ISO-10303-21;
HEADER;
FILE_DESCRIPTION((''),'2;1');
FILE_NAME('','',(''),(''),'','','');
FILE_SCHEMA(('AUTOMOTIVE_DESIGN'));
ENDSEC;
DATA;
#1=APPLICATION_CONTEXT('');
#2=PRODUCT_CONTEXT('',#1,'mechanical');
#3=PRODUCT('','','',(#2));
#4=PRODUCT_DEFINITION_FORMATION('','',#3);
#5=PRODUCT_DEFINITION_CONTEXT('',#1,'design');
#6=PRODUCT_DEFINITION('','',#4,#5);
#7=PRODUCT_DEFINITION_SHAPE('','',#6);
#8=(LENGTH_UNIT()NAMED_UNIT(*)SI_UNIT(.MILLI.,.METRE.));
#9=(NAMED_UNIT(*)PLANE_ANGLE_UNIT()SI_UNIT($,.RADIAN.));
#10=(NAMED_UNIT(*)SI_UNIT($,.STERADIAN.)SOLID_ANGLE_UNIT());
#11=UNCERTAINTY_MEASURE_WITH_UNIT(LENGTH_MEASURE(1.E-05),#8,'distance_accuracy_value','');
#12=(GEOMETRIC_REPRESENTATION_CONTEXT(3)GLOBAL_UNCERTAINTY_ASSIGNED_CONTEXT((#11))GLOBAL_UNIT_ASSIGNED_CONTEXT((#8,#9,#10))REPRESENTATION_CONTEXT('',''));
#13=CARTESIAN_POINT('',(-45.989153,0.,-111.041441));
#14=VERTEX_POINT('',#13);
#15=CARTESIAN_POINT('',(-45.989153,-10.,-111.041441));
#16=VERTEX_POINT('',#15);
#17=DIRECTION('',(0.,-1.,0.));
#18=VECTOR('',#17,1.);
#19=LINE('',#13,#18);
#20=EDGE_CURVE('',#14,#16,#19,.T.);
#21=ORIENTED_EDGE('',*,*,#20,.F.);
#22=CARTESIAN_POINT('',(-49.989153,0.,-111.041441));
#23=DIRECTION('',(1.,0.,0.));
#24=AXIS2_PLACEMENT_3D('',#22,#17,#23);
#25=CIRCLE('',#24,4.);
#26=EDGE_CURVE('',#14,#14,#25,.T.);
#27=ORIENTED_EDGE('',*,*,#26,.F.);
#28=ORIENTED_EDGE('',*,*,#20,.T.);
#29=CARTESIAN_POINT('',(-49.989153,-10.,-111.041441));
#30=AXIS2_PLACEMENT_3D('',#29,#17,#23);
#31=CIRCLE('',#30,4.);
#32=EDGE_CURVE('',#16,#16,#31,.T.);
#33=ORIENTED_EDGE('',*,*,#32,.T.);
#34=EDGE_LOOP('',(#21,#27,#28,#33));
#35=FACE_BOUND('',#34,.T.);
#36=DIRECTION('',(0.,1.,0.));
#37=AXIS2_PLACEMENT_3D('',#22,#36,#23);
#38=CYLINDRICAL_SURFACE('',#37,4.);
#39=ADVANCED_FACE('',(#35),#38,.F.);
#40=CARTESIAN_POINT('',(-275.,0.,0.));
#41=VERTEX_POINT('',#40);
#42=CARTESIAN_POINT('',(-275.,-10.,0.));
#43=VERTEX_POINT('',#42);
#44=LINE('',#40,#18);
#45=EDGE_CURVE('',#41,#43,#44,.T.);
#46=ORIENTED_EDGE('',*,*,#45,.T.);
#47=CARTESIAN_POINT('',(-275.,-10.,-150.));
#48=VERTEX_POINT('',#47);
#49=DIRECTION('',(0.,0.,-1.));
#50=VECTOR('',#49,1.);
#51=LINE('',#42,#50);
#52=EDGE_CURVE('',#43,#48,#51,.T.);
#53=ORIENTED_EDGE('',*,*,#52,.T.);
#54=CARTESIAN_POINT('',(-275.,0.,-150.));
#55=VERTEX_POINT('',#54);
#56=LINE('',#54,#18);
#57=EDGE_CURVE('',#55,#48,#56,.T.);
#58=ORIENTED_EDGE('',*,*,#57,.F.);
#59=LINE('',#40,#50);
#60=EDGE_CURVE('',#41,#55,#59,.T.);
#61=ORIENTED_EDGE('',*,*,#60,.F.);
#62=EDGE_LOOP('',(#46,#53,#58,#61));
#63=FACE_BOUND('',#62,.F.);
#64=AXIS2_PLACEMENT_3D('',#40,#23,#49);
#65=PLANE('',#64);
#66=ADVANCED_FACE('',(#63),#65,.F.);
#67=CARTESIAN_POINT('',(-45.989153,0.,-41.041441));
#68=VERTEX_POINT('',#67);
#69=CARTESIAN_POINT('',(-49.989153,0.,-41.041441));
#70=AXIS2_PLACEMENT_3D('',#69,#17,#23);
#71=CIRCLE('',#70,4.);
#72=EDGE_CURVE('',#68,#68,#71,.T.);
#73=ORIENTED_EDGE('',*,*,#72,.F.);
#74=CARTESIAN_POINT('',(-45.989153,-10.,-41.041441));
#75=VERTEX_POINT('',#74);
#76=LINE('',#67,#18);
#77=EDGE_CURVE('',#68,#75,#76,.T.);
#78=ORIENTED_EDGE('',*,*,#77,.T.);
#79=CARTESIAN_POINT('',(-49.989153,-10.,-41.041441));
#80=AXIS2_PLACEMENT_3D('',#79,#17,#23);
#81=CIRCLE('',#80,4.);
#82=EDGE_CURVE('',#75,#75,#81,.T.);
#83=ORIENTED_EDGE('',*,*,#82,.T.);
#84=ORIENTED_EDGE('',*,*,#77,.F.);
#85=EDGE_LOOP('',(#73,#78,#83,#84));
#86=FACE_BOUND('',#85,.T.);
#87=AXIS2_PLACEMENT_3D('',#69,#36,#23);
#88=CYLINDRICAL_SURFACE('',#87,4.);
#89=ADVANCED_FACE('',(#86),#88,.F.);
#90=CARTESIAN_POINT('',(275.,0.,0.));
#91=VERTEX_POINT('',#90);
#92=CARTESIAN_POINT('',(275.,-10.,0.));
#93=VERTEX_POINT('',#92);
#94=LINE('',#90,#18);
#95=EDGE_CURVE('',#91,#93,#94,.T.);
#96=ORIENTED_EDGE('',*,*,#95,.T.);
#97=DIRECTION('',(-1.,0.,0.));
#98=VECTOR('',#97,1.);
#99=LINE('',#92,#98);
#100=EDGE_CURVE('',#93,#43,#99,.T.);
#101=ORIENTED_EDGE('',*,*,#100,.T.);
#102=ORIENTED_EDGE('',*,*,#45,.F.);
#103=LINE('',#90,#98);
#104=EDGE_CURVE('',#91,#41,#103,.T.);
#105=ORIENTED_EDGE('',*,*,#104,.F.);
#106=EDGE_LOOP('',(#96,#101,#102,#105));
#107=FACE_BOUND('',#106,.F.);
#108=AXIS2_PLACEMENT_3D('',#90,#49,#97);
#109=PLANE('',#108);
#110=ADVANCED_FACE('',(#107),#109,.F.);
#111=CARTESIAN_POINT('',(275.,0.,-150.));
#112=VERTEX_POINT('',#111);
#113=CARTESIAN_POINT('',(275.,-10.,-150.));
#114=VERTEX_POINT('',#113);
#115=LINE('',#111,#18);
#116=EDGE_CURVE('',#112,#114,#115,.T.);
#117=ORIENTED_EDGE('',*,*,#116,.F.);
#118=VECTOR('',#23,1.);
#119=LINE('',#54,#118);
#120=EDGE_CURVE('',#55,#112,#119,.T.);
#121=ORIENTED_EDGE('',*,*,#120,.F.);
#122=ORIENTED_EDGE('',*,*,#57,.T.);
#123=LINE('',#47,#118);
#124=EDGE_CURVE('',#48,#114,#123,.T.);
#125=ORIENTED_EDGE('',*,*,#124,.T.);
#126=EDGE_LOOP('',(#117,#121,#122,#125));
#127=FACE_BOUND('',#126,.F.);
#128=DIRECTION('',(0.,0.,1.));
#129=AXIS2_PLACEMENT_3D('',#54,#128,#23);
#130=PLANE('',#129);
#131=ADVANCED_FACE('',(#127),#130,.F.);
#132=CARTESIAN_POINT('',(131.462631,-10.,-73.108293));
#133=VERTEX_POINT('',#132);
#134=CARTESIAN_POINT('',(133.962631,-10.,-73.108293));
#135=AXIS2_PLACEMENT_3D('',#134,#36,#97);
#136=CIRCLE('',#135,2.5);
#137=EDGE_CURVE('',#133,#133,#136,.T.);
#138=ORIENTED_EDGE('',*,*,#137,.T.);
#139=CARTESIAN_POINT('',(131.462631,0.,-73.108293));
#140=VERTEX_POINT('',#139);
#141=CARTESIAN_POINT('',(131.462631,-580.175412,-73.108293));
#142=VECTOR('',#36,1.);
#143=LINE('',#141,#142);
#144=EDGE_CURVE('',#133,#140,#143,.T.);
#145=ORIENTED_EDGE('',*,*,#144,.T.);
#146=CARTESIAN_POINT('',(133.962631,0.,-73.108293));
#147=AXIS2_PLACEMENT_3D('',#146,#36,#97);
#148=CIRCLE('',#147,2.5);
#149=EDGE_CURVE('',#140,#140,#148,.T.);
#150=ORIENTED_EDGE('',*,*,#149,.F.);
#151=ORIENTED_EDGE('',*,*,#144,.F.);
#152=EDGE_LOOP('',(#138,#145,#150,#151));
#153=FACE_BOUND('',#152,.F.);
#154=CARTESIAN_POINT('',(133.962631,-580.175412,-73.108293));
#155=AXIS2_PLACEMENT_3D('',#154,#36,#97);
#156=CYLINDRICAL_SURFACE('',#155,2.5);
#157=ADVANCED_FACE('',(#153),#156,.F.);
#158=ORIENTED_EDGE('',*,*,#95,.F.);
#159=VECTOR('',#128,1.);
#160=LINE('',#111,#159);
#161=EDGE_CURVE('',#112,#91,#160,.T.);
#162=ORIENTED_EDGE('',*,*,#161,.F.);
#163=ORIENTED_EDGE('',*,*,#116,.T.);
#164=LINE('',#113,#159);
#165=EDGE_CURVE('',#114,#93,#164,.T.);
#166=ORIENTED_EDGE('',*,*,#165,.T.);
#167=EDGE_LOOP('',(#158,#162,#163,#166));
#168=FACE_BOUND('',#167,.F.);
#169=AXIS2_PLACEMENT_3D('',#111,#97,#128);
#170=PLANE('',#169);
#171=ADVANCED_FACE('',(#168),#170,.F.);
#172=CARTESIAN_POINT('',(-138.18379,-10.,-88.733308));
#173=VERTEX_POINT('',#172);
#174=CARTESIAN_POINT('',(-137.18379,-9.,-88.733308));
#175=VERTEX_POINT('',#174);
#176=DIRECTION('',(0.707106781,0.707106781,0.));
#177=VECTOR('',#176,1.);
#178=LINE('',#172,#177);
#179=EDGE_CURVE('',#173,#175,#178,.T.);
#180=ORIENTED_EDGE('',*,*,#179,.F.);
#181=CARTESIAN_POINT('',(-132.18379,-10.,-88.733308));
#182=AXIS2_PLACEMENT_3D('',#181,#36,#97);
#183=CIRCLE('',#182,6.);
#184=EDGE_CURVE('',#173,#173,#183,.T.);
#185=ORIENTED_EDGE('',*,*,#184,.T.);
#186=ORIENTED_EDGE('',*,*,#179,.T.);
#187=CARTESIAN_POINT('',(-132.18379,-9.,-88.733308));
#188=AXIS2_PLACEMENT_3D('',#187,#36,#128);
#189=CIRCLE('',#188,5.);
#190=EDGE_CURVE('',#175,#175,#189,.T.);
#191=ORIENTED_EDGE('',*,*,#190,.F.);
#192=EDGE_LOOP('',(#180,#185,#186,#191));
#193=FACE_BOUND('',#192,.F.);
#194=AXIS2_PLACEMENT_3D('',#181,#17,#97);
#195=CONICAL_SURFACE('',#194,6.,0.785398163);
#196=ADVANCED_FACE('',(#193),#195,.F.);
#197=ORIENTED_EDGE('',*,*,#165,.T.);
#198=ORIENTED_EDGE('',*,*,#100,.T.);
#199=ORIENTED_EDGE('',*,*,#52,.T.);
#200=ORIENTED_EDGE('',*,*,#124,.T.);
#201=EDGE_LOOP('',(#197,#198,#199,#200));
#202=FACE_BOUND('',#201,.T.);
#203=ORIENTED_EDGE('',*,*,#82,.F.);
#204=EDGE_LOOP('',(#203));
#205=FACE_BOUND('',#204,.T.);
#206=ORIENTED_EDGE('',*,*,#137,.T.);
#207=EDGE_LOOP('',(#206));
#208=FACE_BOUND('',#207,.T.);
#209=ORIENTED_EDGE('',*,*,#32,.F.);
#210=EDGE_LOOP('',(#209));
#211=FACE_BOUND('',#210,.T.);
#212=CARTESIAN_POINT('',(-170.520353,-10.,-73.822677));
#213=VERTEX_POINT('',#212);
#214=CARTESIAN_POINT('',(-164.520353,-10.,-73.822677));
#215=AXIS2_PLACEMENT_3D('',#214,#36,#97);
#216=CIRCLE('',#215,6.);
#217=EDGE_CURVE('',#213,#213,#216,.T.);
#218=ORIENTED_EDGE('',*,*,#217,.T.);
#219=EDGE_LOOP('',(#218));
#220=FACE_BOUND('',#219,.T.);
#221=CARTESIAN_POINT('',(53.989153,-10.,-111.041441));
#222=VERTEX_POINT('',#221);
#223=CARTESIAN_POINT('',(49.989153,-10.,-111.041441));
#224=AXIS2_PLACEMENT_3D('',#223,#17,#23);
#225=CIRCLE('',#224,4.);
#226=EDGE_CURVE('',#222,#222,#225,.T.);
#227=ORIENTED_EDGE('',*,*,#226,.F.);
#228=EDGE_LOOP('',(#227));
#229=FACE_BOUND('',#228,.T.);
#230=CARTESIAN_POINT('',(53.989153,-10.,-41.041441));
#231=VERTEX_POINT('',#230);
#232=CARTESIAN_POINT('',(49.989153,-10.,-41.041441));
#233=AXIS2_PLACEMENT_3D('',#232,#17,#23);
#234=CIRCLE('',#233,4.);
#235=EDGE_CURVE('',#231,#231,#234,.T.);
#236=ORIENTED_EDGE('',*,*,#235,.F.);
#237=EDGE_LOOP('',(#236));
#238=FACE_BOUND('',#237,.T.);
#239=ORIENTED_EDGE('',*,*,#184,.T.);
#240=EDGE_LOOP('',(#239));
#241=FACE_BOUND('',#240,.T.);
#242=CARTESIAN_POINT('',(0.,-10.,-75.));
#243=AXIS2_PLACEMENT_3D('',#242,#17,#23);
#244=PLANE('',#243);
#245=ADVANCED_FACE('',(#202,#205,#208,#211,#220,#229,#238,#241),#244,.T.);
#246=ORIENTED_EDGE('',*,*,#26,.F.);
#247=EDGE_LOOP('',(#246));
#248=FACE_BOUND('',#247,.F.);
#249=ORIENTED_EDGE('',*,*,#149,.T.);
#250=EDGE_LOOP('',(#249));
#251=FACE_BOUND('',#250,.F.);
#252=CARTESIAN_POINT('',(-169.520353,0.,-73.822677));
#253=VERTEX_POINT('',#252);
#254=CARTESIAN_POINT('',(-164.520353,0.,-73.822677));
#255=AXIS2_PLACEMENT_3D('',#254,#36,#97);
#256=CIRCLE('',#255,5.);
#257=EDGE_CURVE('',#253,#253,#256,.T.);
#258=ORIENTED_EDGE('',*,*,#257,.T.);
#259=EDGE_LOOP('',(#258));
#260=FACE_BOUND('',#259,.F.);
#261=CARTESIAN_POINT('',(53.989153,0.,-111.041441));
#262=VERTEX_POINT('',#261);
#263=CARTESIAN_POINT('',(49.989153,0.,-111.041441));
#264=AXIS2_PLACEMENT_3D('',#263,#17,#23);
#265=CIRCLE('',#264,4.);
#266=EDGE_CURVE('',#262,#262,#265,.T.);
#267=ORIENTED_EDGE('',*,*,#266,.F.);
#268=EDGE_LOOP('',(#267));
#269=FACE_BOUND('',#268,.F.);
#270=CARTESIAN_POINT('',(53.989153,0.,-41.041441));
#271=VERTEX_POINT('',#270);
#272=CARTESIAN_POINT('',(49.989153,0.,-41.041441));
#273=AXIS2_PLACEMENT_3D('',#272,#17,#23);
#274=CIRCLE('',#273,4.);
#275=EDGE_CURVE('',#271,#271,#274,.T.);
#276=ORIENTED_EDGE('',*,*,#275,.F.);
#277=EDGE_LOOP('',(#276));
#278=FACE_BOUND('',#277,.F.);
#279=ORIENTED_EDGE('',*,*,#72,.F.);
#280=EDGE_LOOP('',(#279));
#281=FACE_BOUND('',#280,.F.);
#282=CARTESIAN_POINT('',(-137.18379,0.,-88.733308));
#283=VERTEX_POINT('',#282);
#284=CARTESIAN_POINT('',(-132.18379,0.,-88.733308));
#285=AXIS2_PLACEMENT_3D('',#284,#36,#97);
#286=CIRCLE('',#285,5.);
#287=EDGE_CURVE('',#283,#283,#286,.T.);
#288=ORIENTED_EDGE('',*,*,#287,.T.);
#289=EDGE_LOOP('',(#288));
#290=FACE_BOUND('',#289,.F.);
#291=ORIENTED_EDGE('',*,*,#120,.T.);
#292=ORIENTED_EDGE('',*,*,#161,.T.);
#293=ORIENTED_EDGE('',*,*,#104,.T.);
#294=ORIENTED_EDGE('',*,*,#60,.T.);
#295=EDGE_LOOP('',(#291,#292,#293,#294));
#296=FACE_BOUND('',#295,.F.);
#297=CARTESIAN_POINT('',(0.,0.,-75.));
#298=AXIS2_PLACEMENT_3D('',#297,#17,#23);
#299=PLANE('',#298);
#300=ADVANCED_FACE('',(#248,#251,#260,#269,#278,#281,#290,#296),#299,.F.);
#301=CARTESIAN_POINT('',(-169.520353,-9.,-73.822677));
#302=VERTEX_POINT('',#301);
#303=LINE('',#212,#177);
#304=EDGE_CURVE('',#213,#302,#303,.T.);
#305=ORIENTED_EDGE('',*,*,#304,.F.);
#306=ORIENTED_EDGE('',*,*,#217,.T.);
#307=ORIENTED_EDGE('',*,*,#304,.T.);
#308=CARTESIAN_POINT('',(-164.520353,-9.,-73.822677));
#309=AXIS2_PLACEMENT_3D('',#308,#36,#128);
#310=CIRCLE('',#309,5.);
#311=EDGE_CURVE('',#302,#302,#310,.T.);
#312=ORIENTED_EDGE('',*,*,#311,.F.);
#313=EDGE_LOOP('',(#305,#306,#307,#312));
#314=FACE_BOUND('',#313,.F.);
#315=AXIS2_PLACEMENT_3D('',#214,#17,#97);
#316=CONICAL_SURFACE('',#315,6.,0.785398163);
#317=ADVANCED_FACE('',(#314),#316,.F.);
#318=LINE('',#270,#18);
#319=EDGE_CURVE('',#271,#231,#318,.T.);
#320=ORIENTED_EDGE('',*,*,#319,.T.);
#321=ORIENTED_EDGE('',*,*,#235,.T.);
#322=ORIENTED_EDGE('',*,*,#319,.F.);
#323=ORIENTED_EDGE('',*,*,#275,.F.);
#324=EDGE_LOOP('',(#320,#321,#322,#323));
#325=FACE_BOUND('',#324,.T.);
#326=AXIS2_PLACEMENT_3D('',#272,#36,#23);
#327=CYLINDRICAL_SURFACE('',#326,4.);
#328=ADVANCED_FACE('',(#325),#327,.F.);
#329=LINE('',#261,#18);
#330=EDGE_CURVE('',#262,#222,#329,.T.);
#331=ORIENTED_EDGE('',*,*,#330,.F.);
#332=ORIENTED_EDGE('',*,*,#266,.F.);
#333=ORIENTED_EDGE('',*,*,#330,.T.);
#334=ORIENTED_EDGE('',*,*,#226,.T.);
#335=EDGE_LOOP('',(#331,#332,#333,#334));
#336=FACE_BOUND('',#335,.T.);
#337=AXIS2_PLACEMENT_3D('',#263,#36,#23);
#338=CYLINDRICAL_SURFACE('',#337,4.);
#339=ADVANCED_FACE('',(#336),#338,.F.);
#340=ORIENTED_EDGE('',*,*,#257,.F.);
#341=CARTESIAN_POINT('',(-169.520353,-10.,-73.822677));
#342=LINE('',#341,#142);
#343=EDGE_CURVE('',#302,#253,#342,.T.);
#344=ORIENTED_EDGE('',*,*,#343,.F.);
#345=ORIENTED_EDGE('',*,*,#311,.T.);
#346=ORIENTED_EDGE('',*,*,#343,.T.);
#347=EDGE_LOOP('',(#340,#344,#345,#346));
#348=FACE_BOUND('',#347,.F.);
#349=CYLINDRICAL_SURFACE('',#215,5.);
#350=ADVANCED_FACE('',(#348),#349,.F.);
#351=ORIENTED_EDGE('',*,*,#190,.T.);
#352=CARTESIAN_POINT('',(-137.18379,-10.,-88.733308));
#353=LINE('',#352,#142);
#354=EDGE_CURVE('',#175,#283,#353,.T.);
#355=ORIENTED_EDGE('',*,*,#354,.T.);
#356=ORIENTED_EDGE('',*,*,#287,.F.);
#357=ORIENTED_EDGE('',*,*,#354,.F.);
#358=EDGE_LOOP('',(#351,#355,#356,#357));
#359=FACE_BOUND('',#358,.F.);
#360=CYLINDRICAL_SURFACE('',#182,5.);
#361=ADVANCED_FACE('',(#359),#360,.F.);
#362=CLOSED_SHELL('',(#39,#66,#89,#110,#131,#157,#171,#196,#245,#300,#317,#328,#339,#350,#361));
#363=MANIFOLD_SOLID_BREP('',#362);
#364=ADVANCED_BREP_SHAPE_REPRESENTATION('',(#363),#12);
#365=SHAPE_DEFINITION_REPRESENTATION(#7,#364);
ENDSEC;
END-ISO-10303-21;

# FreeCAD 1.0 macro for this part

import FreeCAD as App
import Part
import Sketcher

V = App.Vector
Q = App.Units.Quantity

doc = App.newDocument("Part")
body = doc.addObject("PartDesign::Body", "Body")

# Sketch on XZ plane
sketch1 = body.newObject("Sketcher::SketchObject", "Sketch")
sketch1.AttachmentSupport = (doc.getObject("XZ_Plane"), [""])
sketch1.MapMode = "FlatFace"
sketch1.addGeometry([
    Part.LineSegment(V(-275, 0, 0), V(-275, -150, 0)),  # 0
    Part.LineSegment(V(-275, -150, 0), V(275, -150, 0)),  # 1
    Part.LineSegment(V(275, -150, 0), V(275, 0, 0)),  # 2
    Part.LineSegment(V(275, 0, 0), V(-275, 0, 0)),  # 3
    Part.Circle(V(-50, -111, 0), V(0, 0, 1), 4),  # 4
    Part.Circle(V(50, -111, 0), V(0, 0, 1), 4),  # 5
    Part.Circle(V(-50, -41, 0), V(0, 0, 1), 4),  # 6
    Part.Circle(V(50, -41, 0), V(0, 0, 1), 4),  # 7
], False)
sketch1.addConstraint([
    Sketcher.Constraint("Coincident", 0, 2, 1, 1),
    Sketcher.Constraint("Coincident", 1, 2, 2, 1),
    Sketcher.Constraint("Coincident", 2, 2, 3, 1),
    Sketcher.Constraint("Coincident", 3, 2, 0, 1),
    Sketcher.Constraint("Vertical", 0),
    Sketcher.Constraint("Horizontal", 1),
    Sketcher.Constraint("Vertical", 2),
    Sketcher.Constraint("Horizontal", 3),
    Sketcher.Constraint("Equal", 4, 5),
    Sketcher.Constraint("Equal", 5, 6),
    Sketcher.Constraint("Equal", 6, 7),
    Sketcher.Constraint("Symmetric", 2, 2, 3, 2, -1, 1),
    Sketcher.Constraint("Symmetric", 4, 3, 5, 3, -2),
    Sketcher.Constraint("Symmetric", 6, 3, 7, 3, -2),
    Sketcher.Constraint("Vertical", 4, 3, 6, 3),
    Sketcher.Constraint("Diameter", 4, Q("8 mm")),
    Sketcher.Constraint("DistanceX", 1, 1, 1, 2, Q("550 mm")),
    Sketcher.Constraint("DistanceY", 0, 2, 0, 1, Q("150 mm")),
    Sketcher.Constraint("DistanceY", 4, 3, 6, 3, Q("70 mm")),
    Sketcher.Constraint("DistanceY", 4, 3, -1, 1, Q("111.041441 mm")),
    Sketcher.Constraint("DistanceX", 4, 3, -1, 1, Q("49.989153 mm")),
])
pad1 = body.newObject("PartDesign::Pad", "Pad")
pad1.Profile = sketch1
pad1.Length = 10

# Sketch on XZ plane
sketch2 = body.newObject("Sketcher::SketchObject", "Sketch001")
sketch2.AttachmentSupport = (doc.getObject("XZ_Plane"), [""])
sketch2.MapMode = "FlatFace"
sketch2.AttachmentOffset = App.Placement(V(0, 0, 10), App.Rotation())
sketch2.addGeometry(Part.Circle(V(-132, -89, 0), V(0, 0, 1), 5), False)
sketch2.addConstraint([
    Sketcher.Constraint("Diameter", 0, Q("10 mm")),
    Sketcher.Constraint("DistanceX", 0, 3, -1, 1, Q("132.18379 mm")),
    Sketcher.Constraint("DistanceY", 0, 3, -1, 1, Q("88.733308 mm")),
])
doc.recompute()
hole = body.newObject("PartDesign::Hole", "Hole")
hole.Profile = sketch2
hole.ThreadType = "None"
hole.Diameter = 10
hole.DepthType = "ThroughAll"
hole.HoleCutType = "Countersink"
hole.HoleCutDiameter = 12
hole.HoleCutCountersinkAngle = 90

# Sketch on XZ plane
sketch3 = body.newObject("Sketcher::SketchObject", "Sketch002")
sketch3.AttachmentSupport = (doc.getObject("XZ_Plane"), [""])
sketch3.MapMode = "FlatFace"
sketch3.AttachmentOffset = App.Placement(V(0, 0, 10), App.Rotation())
sketch3.addGeometry(Part.Circle(V(-165, -74, 0), V(0, 0, 1), 5), False)
sketch3.addConstraint([
    Sketcher.Constraint("Diameter", 0, Q("10 mm")),
    Sketcher.Constraint("DistanceX", 0, 3, -1, 1, Q("164.520353 mm")),
    Sketcher.Constraint("DistanceY", 0, 3, -1, 1, Q("73.822677 mm")),
])
doc.recompute()
hole2 = body.newObject("PartDesign::Hole", "Hole001")
hole2.Profile = sketch3
hole2.ThreadType = "None"
hole2.Diameter = 10
hole2.DepthType = "ThroughAll"
hole2.HoleCutType = "Countersink"
hole2.HoleCutDiameter = 12
hole2.HoleCutCountersinkAngle = 90

# Sketch on XZ plane
sketch4 = body.newObject("Sketcher::SketchObject", "Sketch003")
sketch4.AttachmentSupport = (doc.getObject("XZ_Plane"), [""])
sketch4.MapMode = "FlatFace"
sketch4.AttachmentOffset = App.Placement(V(0, 0, 10), App.Rotation())
sketch4.addGeometry(Part.Circle(V(134, -73.1, 0), V(0, 0, 1), 2.5), False)
sketch4.addConstraint([
    Sketcher.Constraint("Diameter", 0, Q("5 mm")),
    Sketcher.Constraint("DistanceX", -1, 1, 0, 3, Q("133.962631 mm")),
    Sketcher.Constraint("DistanceY", 0, 3, -1, 1, Q("73.108293 mm")),
])
doc.recompute()
hole3 = body.newObject("PartDesign::Hole", "Hole002")
hole3.Profile = sketch4
hole3.ThreadType = "None"
hole3.Diameter = 5
hole3.DepthType = "ThroughAll"

doc.recompute()
